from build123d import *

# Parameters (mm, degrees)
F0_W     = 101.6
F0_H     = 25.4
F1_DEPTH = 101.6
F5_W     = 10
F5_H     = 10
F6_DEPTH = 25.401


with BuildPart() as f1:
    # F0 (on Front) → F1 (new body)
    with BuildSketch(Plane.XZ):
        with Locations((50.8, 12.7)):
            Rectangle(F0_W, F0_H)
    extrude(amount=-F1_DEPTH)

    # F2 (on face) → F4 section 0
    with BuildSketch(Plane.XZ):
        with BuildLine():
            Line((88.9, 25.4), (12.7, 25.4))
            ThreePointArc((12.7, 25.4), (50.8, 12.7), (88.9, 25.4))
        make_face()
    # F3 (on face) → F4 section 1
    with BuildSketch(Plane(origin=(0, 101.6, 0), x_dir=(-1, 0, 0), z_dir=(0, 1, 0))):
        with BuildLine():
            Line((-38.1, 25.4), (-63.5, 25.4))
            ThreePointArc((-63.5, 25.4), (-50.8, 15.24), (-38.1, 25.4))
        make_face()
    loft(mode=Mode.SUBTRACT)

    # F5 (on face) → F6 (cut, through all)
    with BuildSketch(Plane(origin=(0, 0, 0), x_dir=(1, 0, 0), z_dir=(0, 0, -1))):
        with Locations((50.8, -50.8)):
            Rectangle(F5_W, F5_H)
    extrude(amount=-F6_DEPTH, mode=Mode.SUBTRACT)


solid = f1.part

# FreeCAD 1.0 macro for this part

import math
import FreeCAD as App
import Part
import Sketcher

V = App.Vector
Q = App.Units.Quantity


def add_polygon(sketch, points):
    """Adds a closed chain of lines whose ends are joined by coincident constraints."""
    first, n = sketch.GeometryCount, len(points)
    for a, b in zip(points, points[1:] + points[:1]):
        sketch.addGeometry(Part.LineSegment(App.Vector(*a, 0), App.Vector(*b, 0)), False)
    for i in range(n):
        sketch.addConstraint(Sketcher.Constraint("Coincident", first + i, 2, first + (i + 1) % n, 1))

doc = App.newDocument("Part")
params = doc.addObject("Spreadsheet::Sheet", "Params")
for row, (alias, value) in enumerate([
    ("sketch1_width", "4 in"),
    ("sketch1_height", "1 in"),
    ("pad1_length", "4 in"),
    ("sketch2_radius", "2.5 in"),
    ("sketch2_width", "3 in"),
    ("sketch3_width", "1 in"),
], start=1):
    params.set(f"A{row}", alias)
    params.set(f"B{row}", "=" + value)
    params.setAlias(f"B{row}", alias)

body = doc.addObject("PartDesign::Body", "Body")

# Sketch on XZ plane
sketch1 = body.newObject("Sketcher::SketchObject", "Sketch")
sketch1.AttachmentSupport = (doc.getObject("XZ_Plane"), [""])
sketch1.MapMode = "FlatFace"
add_polygon(sketch1, [(0, 25), (0, 0), (102, 0), (102, 25)])  # lines 0-3
sketch1.addConstraint([
    Sketcher.Constraint("Vertical", 0),
    Sketcher.Constraint("Horizontal", 1),
    Sketcher.Constraint("Vertical", 2),
    Sketcher.Constraint("Horizontal", 3),
    Sketcher.Constraint("Coincident", 0, 2, -1, 1),
    Sketcher.Constraint("DistanceX", 1, 1, 1, 2, Q("4 in")),
    Sketcher.Constraint("DistanceY", 0, 2, 0, 1, Q("1 in")),
])
sketch1.setExpression("Constraints[9]", "Params.sketch1_width")
sketch1.setExpression("Constraints[10]", "Params.sketch1_height")
pad1 = body.newObject("PartDesign::Pad", "Pad")
pad1.Profile = sketch1
pad1.setExpression("Length", "Params.pad1_length")
pad1.Reversed = True

# Sketch on XZ plane
sketch2 = body.newObject("Sketcher::SketchObject", "Sketch001")
sketch2.AttachmentSupport = (doc.getObject("XZ_Plane"), [""])
sketch2.MapMode = "FlatFace"
sketch2.addGeometry([
    Part.LineSegment(V(89, 25, 0), V(13, 25, 0)),
    Part.ArcOfCircle(Part.Circle(V(51, 76, 0), V(0, 0, 1), 64), math.radians(-127), math.radians(-53)),
], False)
sketch2.addConstraint([
    Sketcher.Constraint("Coincident", 0, 1, 1, 2),
    Sketcher.Constraint("Coincident", 1, 1, 0, 2),
    Sketcher.Constraint("Horizontal", 0),
    Sketcher.Constraint("Radius", 1, Q("2.5 in")),
    Sketcher.Constraint("DistanceX", 0, 2, 0, 1, Q("3 in")),
    Sketcher.Constraint("DistanceX", -1, 1, 1, 3, Q("2 in")),
    Sketcher.Constraint("DistanceY", -1, 1, 1, 3, Q("3 in")),
])
sketch2.setExpression("Constraints[3]", "Params.sketch2_radius")
sketch2.setExpression("Constraints[4]", "Params.sketch2_width")

# Sketch on XZ plane
sketch3 = body.newObject("Sketcher::SketchObject", "Sketch002")
sketch3.AttachmentSupport = (doc.getObject("XZ_Plane"), [""])
sketch3.MapMode = "FlatFace"
sketch3.AttachmentOffset = App.Placement(V(0, 0, -4 * 25.4), App.Rotation())
sketch3.addGeometry([
    Part.LineSegment(V(38, 25, 0), V(64, 25, 0)),
    Part.ArcOfCircle(Part.Circle(V(51, 28, 0), V(0, 0, 1), 13), math.radians(-167), math.radians(-13)),
], False)
sketch3.addConstraint([
    Sketcher.Constraint("Coincident", 0, 1, 1, 1),
    Sketcher.Constraint("Coincident", 1, 2, 0, 2),
    Sketcher.Constraint("Horizontal", 0),
    Sketcher.Constraint("DistanceX", 0, 1, 0, 2, Q("1 in")),
    Sketcher.Constraint("DistanceX", -1, 1, 1, 3, Q("2 in")),
    Sketcher.Constraint("DistanceY", -1, 1, 0, 1, Q("1 in")),
    Sketcher.Constraint("Radius", 1, Q("0.5125 in")),
])
sketch3.setExpression("Constraints[3]", "Params.sketch3_width")

subtractiveloft = body.newObject("PartDesign::SubtractiveLoft", "SubtractiveLoft")
subtractiveloft.Profile = sketch2
subtractiveloft.Sections = [sketch3]

# Sketch on XY plane
sketch4 = body.newObject("Sketcher::SketchObject", "Sketch003")
sketch4.AttachmentSupport = (doc.getObject("XY_Plane"), [""])
sketch4.MapMode = "FlatFace"
add_polygon(sketch4, [(46, 46), (46, 56), (56, 56), (56, 46)])  # lines 0-3
sketch4.addConstraint([
    Sketcher.Constraint("Vertical", 0),
    Sketcher.Constraint("Horizontal", 1),
    Sketcher.Constraint("Vertical", 2),
    Sketcher.Constraint("Horizontal", 3),
    Sketcher.Constraint("Equal", 3, 0),
    Sketcher.Constraint("DistanceX", 1, 1, 1, 2, 10.0),
    Sketcher.Constraint("DistanceX", -1, 1, 0, 2, 45.8),
    Sketcher.Constraint("DistanceY", -1, 1, 0, 2, 55.8),
])
pocket1 = body.newObject("PartDesign::Pocket", "Pocket")
pocket1.Profile = sketch4
pocket1.Type = "ThroughAll"
pocket1.Reversed = True

doc.recompute()
